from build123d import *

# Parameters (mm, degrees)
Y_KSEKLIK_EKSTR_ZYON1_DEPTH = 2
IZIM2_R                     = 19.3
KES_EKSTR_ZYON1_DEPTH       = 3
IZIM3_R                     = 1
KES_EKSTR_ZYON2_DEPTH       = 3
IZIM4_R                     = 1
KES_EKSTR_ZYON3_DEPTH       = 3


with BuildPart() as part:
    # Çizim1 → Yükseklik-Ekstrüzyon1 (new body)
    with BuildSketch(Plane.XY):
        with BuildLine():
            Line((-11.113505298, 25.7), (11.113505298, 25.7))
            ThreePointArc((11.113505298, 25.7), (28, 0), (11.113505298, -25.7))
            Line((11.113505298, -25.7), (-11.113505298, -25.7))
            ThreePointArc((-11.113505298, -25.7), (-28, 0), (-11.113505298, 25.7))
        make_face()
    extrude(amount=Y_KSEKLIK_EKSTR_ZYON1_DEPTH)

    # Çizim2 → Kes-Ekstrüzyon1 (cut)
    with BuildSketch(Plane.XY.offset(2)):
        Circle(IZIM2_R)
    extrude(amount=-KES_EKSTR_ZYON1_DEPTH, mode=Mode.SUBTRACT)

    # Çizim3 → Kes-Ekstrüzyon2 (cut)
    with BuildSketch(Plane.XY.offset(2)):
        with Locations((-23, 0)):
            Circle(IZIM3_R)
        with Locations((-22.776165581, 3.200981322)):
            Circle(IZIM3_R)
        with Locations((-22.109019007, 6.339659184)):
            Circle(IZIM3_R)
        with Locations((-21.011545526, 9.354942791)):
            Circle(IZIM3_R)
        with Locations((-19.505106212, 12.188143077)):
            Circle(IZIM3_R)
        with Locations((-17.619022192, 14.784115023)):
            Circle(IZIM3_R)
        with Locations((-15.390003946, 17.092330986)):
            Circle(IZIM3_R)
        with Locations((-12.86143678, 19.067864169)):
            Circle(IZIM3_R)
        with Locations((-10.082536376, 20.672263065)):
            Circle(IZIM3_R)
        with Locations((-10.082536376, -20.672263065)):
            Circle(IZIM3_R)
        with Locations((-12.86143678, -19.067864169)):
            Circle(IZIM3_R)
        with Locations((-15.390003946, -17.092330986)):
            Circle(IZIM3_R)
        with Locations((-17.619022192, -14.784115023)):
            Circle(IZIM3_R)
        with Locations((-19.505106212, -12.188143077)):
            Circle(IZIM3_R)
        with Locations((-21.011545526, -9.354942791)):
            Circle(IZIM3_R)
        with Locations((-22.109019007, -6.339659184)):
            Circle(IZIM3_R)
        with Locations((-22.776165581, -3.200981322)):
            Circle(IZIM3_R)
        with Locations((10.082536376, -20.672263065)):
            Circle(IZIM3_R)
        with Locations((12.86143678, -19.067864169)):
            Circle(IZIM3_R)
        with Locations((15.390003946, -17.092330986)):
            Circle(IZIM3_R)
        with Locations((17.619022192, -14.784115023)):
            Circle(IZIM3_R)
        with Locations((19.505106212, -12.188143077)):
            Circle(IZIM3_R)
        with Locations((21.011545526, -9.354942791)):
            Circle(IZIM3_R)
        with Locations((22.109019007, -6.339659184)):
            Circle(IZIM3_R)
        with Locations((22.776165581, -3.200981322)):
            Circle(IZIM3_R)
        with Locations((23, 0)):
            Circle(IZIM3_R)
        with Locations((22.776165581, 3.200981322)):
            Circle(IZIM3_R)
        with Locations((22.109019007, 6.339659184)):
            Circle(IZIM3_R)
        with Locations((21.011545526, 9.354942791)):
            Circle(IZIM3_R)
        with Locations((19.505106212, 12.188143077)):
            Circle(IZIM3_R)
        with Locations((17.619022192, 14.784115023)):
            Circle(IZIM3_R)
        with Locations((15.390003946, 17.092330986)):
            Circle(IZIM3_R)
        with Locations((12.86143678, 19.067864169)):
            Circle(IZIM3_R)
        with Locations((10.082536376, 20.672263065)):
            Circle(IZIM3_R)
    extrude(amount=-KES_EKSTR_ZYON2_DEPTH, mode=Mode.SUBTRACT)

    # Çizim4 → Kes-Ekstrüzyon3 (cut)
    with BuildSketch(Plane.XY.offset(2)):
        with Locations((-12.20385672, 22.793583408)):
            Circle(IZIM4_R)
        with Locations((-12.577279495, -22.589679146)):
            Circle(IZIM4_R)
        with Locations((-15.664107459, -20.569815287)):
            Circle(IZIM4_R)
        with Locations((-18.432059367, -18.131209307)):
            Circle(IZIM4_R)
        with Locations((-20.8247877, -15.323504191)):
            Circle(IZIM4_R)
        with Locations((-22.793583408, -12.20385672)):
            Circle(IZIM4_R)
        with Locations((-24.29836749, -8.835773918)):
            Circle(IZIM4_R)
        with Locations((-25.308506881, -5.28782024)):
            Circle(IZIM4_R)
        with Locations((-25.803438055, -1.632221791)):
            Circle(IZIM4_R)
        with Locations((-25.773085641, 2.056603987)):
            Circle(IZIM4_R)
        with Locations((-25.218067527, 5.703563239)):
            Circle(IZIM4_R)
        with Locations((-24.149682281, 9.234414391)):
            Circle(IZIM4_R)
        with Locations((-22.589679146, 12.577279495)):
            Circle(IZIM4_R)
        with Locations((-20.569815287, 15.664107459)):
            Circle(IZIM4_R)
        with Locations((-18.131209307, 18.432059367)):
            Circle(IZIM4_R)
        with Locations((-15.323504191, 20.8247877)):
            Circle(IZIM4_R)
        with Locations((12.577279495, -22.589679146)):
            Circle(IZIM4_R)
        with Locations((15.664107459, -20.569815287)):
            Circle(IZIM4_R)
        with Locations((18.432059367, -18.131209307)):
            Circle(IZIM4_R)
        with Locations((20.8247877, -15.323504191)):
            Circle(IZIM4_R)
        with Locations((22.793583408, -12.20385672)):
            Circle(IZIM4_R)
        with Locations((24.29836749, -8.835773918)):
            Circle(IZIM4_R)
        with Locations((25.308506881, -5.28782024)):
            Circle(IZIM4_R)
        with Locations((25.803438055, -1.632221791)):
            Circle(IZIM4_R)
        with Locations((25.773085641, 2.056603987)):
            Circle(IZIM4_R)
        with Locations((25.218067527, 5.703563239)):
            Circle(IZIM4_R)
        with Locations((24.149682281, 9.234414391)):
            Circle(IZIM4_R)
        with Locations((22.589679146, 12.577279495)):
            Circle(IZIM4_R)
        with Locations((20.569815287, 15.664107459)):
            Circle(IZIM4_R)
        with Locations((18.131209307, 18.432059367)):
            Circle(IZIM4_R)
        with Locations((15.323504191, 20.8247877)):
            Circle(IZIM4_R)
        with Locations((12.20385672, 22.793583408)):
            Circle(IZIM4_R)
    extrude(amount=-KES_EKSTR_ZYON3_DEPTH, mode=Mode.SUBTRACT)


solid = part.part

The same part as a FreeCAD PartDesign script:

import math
import FreeCAD as App
import Part
import Sketcher

V = App.Vector
Q = App.Units.Quantity

doc = App.newDocument("Part")
body = doc.addObject("PartDesign::Body", "Body")

# Sketch on XY plane
sketch1 = body.newObject("Sketcher::SketchObject", "Sketch")
sketch1.AttachmentSupport = (doc.getObject("XY_Plane"), [""])
sketch1.MapMode = "FlatFace"
sketch1.addGeometry([
    Part.LineSegment(V(11.113505, 25.7, 0), V(-11.113505, 25.7, 0)),
    Part.ArcOfCircle(Part.Circle(V(0, 0, 0), V(0, 0, 1), 28), math.radians(113.385206), math.radians(246.614794)),
    Part.LineSegment(V(-11.113505, -25.7, 0), V(11.113505, -25.7, 0)),
    Part.ArcOfCircle(Part.Circle(V(0, 0, 0), V(0, 0, 1), 28), math.radians(-66.614794), math.radians(66.614794)),
], False)
sketch1.addConstraint([
    Sketcher.Constraint("Coincident", 0, 2, 1, 1),
    Sketcher.Constraint("Coincident", 1, 2, 2, 1),
    Sketcher.Constraint("Coincident", 2, 2, 3, 1),
    Sketcher.Constraint("Coincident", 3, 2, 0, 1),
    Sketcher.Constraint("Horizontal", 0),
    Sketcher.Constraint("Horizontal", 2),
    Sketcher.Constraint("Coincident", 1, 3, -1, 1),
    Sketcher.Constraint("Coincident", 3, 3, -1, 1),
    Sketcher.Constraint("Equal", 1, 3),
    Sketcher.Constraint("Vertical", 0, 2, 1, 2),
    Sketcher.Constraint("Radius", 1, Q("28 mm")),
    Sketcher.Constraint("DistanceY", -1, 1, 0, 2, Q("25.7 mm")),
])
pad1 = body.newObject("PartDesign::Pad", "Pad")
pad1.Profile = sketch1
pad1.Length = 2

# Sketch on XY plane
sketch2 = body.newObject("Sketcher::SketchObject", "Sketch001")
sketch2.AttachmentSupport = (doc.getObject("XY_Plane"), [""])
sketch2.MapMode = "FlatFace"
sketch2.AttachmentOffset = App.Placement(V(0, 0, 2), App.Rotation())
sketch2.addGeometry(Part.Circle(V(0, 0, 0), V(0, 0, 1), 19.3), False)
sketch2.addConstraint([
    Sketcher.Constraint("Coincident", 0, 3, -1, 1),
    Sketcher.Constraint("Diameter", 0, Q("38.6 mm")),
])
pocket1 = body.newObject("PartDesign::Pocket", "Pocket")
pocket1.Profile = sketch2
pocket1.Length = 3

# Sketch on XY plane
sketch3 = body.newObject("Sketcher::SketchObject", "Sketch002")
sketch3.AttachmentSupport = (doc.getObject("XY_Plane"), [""])
sketch3.MapMode = "FlatFace"
sketch3.AttachmentOffset = App.Placement(V(0, 0, 2), App.Rotation())
sketch3.addGeometry([
    Part.Circle(V(-23, 0, 0), V(0, 0, 1), 1),  # 0
    Part.Circle(V(-22.776166, 3.200981, 0), V(0, 0, 1), 1),  # 1
    Part.Circle(V(-22.109019, 6.339659, 0), V(0, 0, 1), 1),  # 2
    Part.Circle(V(-21.011546, 9.354943, 0), V(0, 0, 1), 1),  # 3
    Part.Circle(V(-19.505106, 12.188143, 0), V(0, 0, 1), 1),  # 4
    Part.Circle(V(-17.619022, 14.784115, 0), V(0, 0, 1), 1),  # 5
    Part.Circle(V(-15.390004, 17.092331, 0), V(0, 0, 1), 1),  # 6
    Part.Circle(V(-12.861437, 19.067864, 0), V(0, 0, 1), 1),  # 7
    Part.Circle(V(-10.082536, 20.672263, 0), V(0, 0, 1), 1),  # 8
    Part.Circle(V(-10.082536, -20.672263, 0), V(0, 0, 1), 1),  # 9
    Part.Circle(V(-12.861437, -19.067864, 0), V(0, 0, 1), 1),  # 10
    Part.Circle(V(-15.390004, -17.092331, 0), V(0, 0, 1), 1),  # 11
    Part.Circle(V(-17.619022, -14.784115, 0), V(0, 0, 1), 1),  # 12
    Part.Circle(V(-19.505106, -12.188143, 0), V(0, 0, 1), 1),  # 13
    Part.Circle(V(-21.011546, -9.354943, 0), V(0, 0, 1), 1),  # 14
    Part.Circle(V(-22.109019, -6.339659, 0), V(0, 0, 1), 1),  # 15
    Part.Circle(V(-22.776166, -3.200981, 0), V(0, 0, 1), 1),  # 16
    Part.Circle(V(10.082536, -20.672263, 0), V(0, 0, 1), 1),  # 17
    Part.Circle(V(12.861437, -19.067864, 0), V(0, 0, 1), 1),  # 18
    Part.Circle(V(15.390004, -17.092331, 0), V(0, 0, 1), 1),  # 19
    Part.Circle(V(17.619022, -14.784115, 0), V(0, 0, 1), 1),  # 20
    Part.Circle(V(19.505106, -12.188143, 0), V(0, 0, 1), 1),  # 21
    Part.Circle(V(21.011546, -9.354943, 0), V(0, 0, 1), 1),  # 22
    Part.Circle(V(22.109019, -6.339659, 0), V(0, 0, 1), 1),  # 23
    Part.Circle(V(22.776166, -3.200981, 0), V(0, 0, 1), 1),  # 24
    Part.Circle(V(23, 0, 0), V(0, 0, 1), 1),  # 25
    Part.Circle(V(22.776166, 3.200981, 0), V(0, 0, 1), 1),  # 26
    Part.Circle(V(22.109019, 6.339659, 0), V(0, 0, 1), 1),  # 27
    Part.Circle(V(21.011546, 9.354943, 0), V(0, 0, 1), 1),  # 28
    Part.Circle(V(19.505106, 12.188143, 0), V(0, 0, 1), 1),  # 29
    Part.Circle(V(17.619022, 14.784115, 0), V(0, 0, 1), 1),  # 30
    Part.Circle(V(15.390004, 17.092331, 0), V(0, 0, 1), 1),  # 31
    Part.Circle(V(12.861437, 19.067864, 0), V(0, 0, 1), 1),  # 32
    Part.Circle(V(10.082536, 20.672263, 0), V(0, 0, 1), 1),  # 33
], False)
sketch3.addConstraint([
    Sketcher.Constraint("Equal", 0, 1),
    Sketcher.Constraint("Equal", 1, 2),
    Sketcher.Constraint("Equal", 2, 3),
    Sketcher.Constraint("Equal", 3, 4),
    Sketcher.Constraint("Equal", 4, 5),
    Sketcher.Constraint("Equal", 5, 6),
    Sketcher.Constraint("Equal", 6, 7),
    Sketcher.Constraint("Equal", 7, 8),
    Sketcher.Constraint("Equal", 8, 9),
    Sketcher.Constraint("Equal", 9, 10),
    Sketcher.Constraint("Equal", 10, 11),
    Sketcher.Constraint("Equal", 11, 12),
    Sketcher.Constraint("Equal", 12, 13),
    Sketcher.Constraint("Equal", 13, 14),
    Sketcher.Constraint("Equal", 14, 15),
    Sketcher.Constraint("Equal", 15, 16),
    Sketcher.Constraint("Equal", 16, 17),
    Sketcher.Constraint("Equal", 17, 18),
    Sketcher.Constraint("Equal", 18, 19),
    Sketcher.Constraint("Equal", 19, 20),
    Sketcher.Constraint("Equal", 20, 21),
    Sketcher.Constraint("Equal", 21, 22),
    Sketcher.Constraint("Equal", 22, 23),
    Sketcher.Constraint("Equal", 23, 24),
    Sketcher.Constraint("Equal", 24, 25),
    Sketcher.Constraint("Equal", 25, 26),
    Sketcher.Constraint("Equal", 26, 27),
    Sketcher.Constraint("Equal", 27, 28),
    Sketcher.Constraint("Equal", 28, 29),
    Sketcher.Constraint("Equal", 29, 30),
    Sketcher.Constraint("Equal", 30, 31),
    Sketcher.Constraint("Equal", 31, 32),
    Sketcher.Constraint("Equal", 32, 33),
    Sketcher.Constraint("Symmetric", 8, 3, 17, 3, -1, 1),
    Sketcher.Constraint("Symmetric", 7, 3, 18, 3, -1, 1),
    Sketcher.Constraint("Symmetric", 6, 3, 19, 3, -1, 1),
    Sketcher.Constraint("Symmetric", 5, 3, 20, 3, -1, 1),
    Sketcher.Constraint("Symmetric", 4, 3, 21, 3, -1, 1),
    Sketcher.Constraint("Symmetric", 3, 3, 22, 3, -1, 1),
    Sketcher.Constraint("Symmetric", 2, 3, 23, 3, -1, 1),
    Sketcher.Constraint("Symmetric", 1, 3, 24, 3, -1, 1),
    Sketcher.Constraint("Symmetric", 0, 3, 25, 3, -1, 1),
    Sketcher.Constraint("Symmetric", 16, 3, 26, 3, -1, 1),
    Sketcher.Constraint("Symmetric", 15, 3, 27, 3, -1, 1),
    Sketcher.Constraint("Symmetric", 14, 3, 28, 3, -1, 1),
    Sketcher.Constraint("Symmetric", 13, 3, 29, 3, -1, 1),
    Sketcher.Constraint("Symmetric", 12, 3, 30, 3, -1, 1),
    Sketcher.Constraint("Symmetric", 11, 3, 31, 3, -1, 1),
    Sketcher.Constraint("Symmetric", 10, 3, 32, 3, -1, 1),
    Sketcher.Constraint("Symmetric", 9, 3, 33, 3, -1, 1),
    Sketcher.Constraint("Symmetric", 9, 3, 17, 3, -2),
    Sketcher.Constraint("Symmetric", 10, 3, 18, 3, -2),
    Sketcher.Constraint("Symmetric", 11, 3, 19, 3, -2),
    Sketcher.Constraint("Symmetric", 12, 3, 20, 3, -2),
    Sketcher.Constraint("Symmetric", 13, 3, 21, 3, -2),
    Sketcher.Constraint("Symmetric", 14, 3, 22, 3, -2),
    Sketcher.Constraint("Symmetric", 15, 3, 23, 3, -2),
    Sketcher.Constraint("Symmetric", 16, 3, 24, 3, -2),
    Sketcher.Constraint("PointOnObject", 0, 3, -1),
    Sketcher.Constraint("Diameter", 0, Q("2 mm")),
    Sketcher.Constraint("DistanceX", 0, 3, -1, 1, Q("23 mm")),
    Sketcher.Constraint("DistanceY", 3, 3, 4, 3, Q("2.8332 mm")),
    Sketcher.Constraint("DistanceX", 7, 3, 8, 3, Q("2.7789 mm")),
    Sketcher.Constraint("DistanceY", 7, 3, 8, 3, Q("1.604399 mm")),
    Sketcher.Constraint("DistanceY", 22, 3, 27, 3, Q("15.694602 mm")),
    Sketcher.Constraint("DistanceY", -1, 1, 1, 3, Q("3.200981 mm")),
    Sketcher.Constraint("DistanceX", 2, 3, -1, 1, Q("22.109019 mm")),
    Sketcher.Constraint("DistanceY", -1, 1, 2, 3, Q("6.339659 mm")),
    Sketcher.Constraint("DistanceY", -1, 1, 6, 3, Q("17.092331 mm")),
    Sketcher.Constraint("DistanceX", 1, 3, 3, 3, Q("1.76462 mm")),
    Sketcher.Constraint("DistanceX", 3, 3, 4, 3, Q("1.506439 mm")),
    Sketcher.Constraint("DistanceY", 4, 3, 5, 3, Q("2.595972 mm")),
    Sketcher.Constraint("DistanceX", 5, 3, 6, 3, Q("2.229018 mm")),
    Sketcher.Constraint("DistanceX", 3, 3, 6, 3, Q("5.621542 mm")),
    Sketcher.Constraint("DistanceY", 5, 3, 7, 3, Q("4.283749 mm")),
    Sketcher.Constraint("DistanceX", 4, 3, 7, 3, Q("6.643669 mm")),
    Sketcher.Constraint("DistanceX", 11, 3, 17, 3, Q("25.47254 mm")),
])
pocket2 = body.newObject("PartDesign::Pocket", "Pocket001")
pocket2.Profile = sketch3
pocket2.Length = 3

# Sketch on XY plane
sketch4 = body.newObject("Sketcher::SketchObject", "Sketch003")
sketch4.AttachmentSupport = (doc.getObject("XY_Plane"), [""])
sketch4.MapMode = "FlatFace"
sketch4.AttachmentOffset = App.Placement(V(0, 0, 2), App.Rotation())
sketch4.addGeometry([
    Part.Circle(V(-12.203857, 22.793583, 0), V(0, 0, 1), 1),  # 0
    Part.Circle(V(-12.577279, -22.589679, 0), V(0, 0, 1), 1),  # 1
    Part.Circle(V(-15.664107, -20.569815, 0), V(0, 0, 1), 1),  # 2
    Part.Circle(V(-18.432059, -18.131209, 0), V(0, 0, 1), 1),  # 3
    Part.Circle(V(-20.824788, -15.323504, 0), V(0, 0, 1), 1),  # 4
    Part.Circle(V(-22.793583, -12.203857, 0), V(0, 0, 1), 1),  # 5
    Part.Circle(V(-24.298367, -8.835774, 0), V(0, 0, 1), 1),  # 6
    Part.Circle(V(-25.308507, -5.28782, 0), V(0, 0, 1), 1),  # 7
    Part.Circle(V(-25.803438, -1.632222, 0), V(0, 0, 1), 1),  # 8
    Part.Circle(V(-25.773086, 2.056604, 0), V(0, 0, 1), 1),  # 9
    Part.Circle(V(-25.218068, 5.703563, 0), V(0, 0, 1), 1),  # 10
    Part.Circle(V(-24.149682, 9.234414, 0), V(0, 0, 1), 1),  # 11
    Part.Circle(V(-22.589679, 12.577279, 0), V(0, 0, 1), 1),  # 12
    Part.Circle(V(-20.569815, 15.664107, 0), V(0, 0, 1), 1),  # 13
    Part.Circle(V(-18.131209, 18.432059, 0), V(0, 0, 1), 1),  # 14
    Part.Circle(V(-15.323504, 20.824788, 0), V(0, 0, 1), 1),  # 15
    Part.Circle(V(12.577279, -22.589679, 0), V(0, 0, 1), 1),  # 16
    Part.Circle(V(15.664107, -20.569815, 0), V(0, 0, 1), 1),  # 17
    Part.Circle(V(18.432059, -18.131209, 0), V(0, 0, 1), 1),  # 18
    Part.Circle(V(20.824788, -15.323504, 0), V(0, 0, 1), 1),  # 19
    Part.Circle(V(22.793583, -12.203857, 0), V(0, 0, 1), 1),  # 20
    Part.Circle(V(24.298367, -8.835774, 0), V(0, 0, 1), 1),  # 21
    Part.Circle(V(25.308507, -5.28782, 0), V(0, 0, 1), 1),  # 22
    Part.Circle(V(25.803438, -1.632222, 0), V(0, 0, 1), 1),  # 23
    Part.Circle(V(25.773086, 2.056604, 0), V(0, 0, 1), 1),  # 24
    Part.Circle(V(25.218068, 5.703563, 0), V(0, 0, 1), 1),  # 25
    Part.Circle(V(24.149682, 9.234414, 0), V(0, 0, 1), 1),  # 26
    Part.Circle(V(22.589679, 12.577279, 0), V(0, 0, 1), 1),  # 27
    Part.Circle(V(20.569815, 15.664107, 0), V(0, 0, 1), 1),  # 28
    Part.Circle(V(18.131209, 18.432059, 0), V(0, 0, 1), 1),  # 29
    Part.Circle(V(15.323504, 20.824788, 0), V(0, 0, 1), 1),  # 30
    Part.Circle(V(12.203857, 22.793583, 0), V(0, 0, 1), 1),  # 31
], False)
sketch4.addConstraint([
    Sketcher.Constraint("Equal", 0, 1),
    Sketcher.Constraint("Equal", 1, 2),
    Sketcher.Constraint("Equal", 2, 3),
    Sketcher.Constraint("Equal", 3, 4),
    Sketcher.Constraint("Equal", 4, 5),
    Sketcher.Constraint("Equal", 5, 6),
    Sketcher.Constraint("Equal", 6, 7),
    Sketcher.Constraint("Equal", 7, 8),
    Sketcher.Constraint("Equal", 8, 9),
    Sketcher.Constraint("Equal", 9, 10),
    Sketcher.Constraint("Equal", 10, 11),
    Sketcher.Constraint("Equal", 11, 12),
    Sketcher.Constraint("Equal", 12, 13),
    Sketcher.Constraint("Equal", 13, 14),
    Sketcher.Constraint("Equal", 14, 15),
    Sketcher.Constraint("Equal", 15, 16),
    Sketcher.Constraint("Equal", 16, 17),
    Sketcher.Constraint("Equal", 17, 18),
    Sketcher.Constraint("Equal", 18, 19),
    Sketcher.Constraint("Equal", 19, 20),
    Sketcher.Constraint("Equal", 20, 21),
    Sketcher.Constraint("Equal", 21, 22),
    Sketcher.Constraint("Equal", 22, 23),
    Sketcher.Constraint("Equal", 23, 24),
    Sketcher.Constraint("Equal", 24, 25),
    Sketcher.Constraint("Equal", 25, 26),
    Sketcher.Constraint("Equal", 26, 27),
    Sketcher.Constraint("Equal", 27, 28),
    Sketcher.Constraint("Equal", 28, 29),
    Sketcher.Constraint("Equal", 29, 30),
    Sketcher.Constraint("Equal", 30, 31),
    Sketcher.Constraint("Symmetric", 1, 3, 16, 3, -2),
    Sketcher.Constraint("Symmetric", 2, 3, 17, 3, -2),
    Sketcher.Constraint("Symmetric", 3, 3, 18, 3, -2),
    Sketcher.Constraint("Symmetric", 4, 3, 19, 3, -2),
    Sketcher.Constraint("Symmetric", 5, 3, 20, 3, -2),
    Sketcher.Constraint("Symmetric", 6, 3, 21, 3, -2),
    Sketcher.Constraint("Symmetric", 7, 3, 22, 3, -2),
    Sketcher.Constraint("Symmetric", 8, 3, 23, 3, -2),
    Sketcher.Constraint("Symmetric", 9, 3, 24, 3, -2),
    Sketcher.Constraint("Symmetric", 10, 3, 25, 3, -2),
    Sketcher.Constraint("Symmetric", 11, 3, 26, 3, -2),
    Sketcher.Constraint("Symmetric", 12, 3, 27, 3, -2),
    Sketcher.Constraint("Symmetric", 13, 3, 28, 3, -2),
    Sketcher.Constraint("Symmetric", 14, 3, 29, 3, -2),
    Sketcher.Constraint("Symmetric", 15, 3, 30, 3, -2),
    Sketcher.Constraint("Symmetric", 0, 3, 31, 3, -2),
    Sketcher.Constraint("Diameter", 0, Q("2 mm")),
    Sketcher.Constraint("DistanceY", 2, 3, 0, 3, Q("43.363399 mm")),
    Sketcher.Constraint("DistanceX", 7, 3, 2, 3, Q("9.644399 mm")),
    Sketcher.Constraint("DistanceY", 7, 3, 8, 3, Q("3.655598 mm")),
    Sketcher.Constraint("DistanceX", 10, 3, 6, 3, Q("0.9197 mm")),
    Sketcher.Constraint("DistanceY", 8, 3, 12, 3, Q("14.209501 mm")),
    Sketcher.Constraint("DistanceX", 1, 3, -1, 1, Q("12.577279 mm")),
    Sketcher.Constraint("DistanceY", 1, 3, -1, 1, Q("22.589679 mm")),
    Sketcher.Constraint("DistanceX", 3, 3, -1, 1, Q("18.432059 mm")),
    Sketcher.Constraint("DistanceY", 3, 3, -1, 1, Q("18.131209 mm")),
    Sketcher.Constraint("DistanceY", 7, 3, -1, 1, Q("5.28782 mm")),
    Sketcher.Constraint("DistanceX", 8, 3, -1, 1, Q("25.803438 mm")),
    Sketcher.Constraint("DistanceX", 12, 3, -1, 1, Q("22.589679 mm")),
    Sketcher.Constraint("DistanceX", 14, 3, -1, 1, Q("18.131209 mm")),
    Sketcher.Constraint("DistanceY", -1, 1, 14, 3, Q("18.432059 mm")),
    Sketcher.Constraint("DistanceX", 2, 3, 0, 3, Q("3.460251 mm")),
    Sketcher.Constraint("DistanceX", 3, 3, 2, 3, Q("2.767952 mm")),
    Sketcher.Constraint("DistanceX", 4, 3, 3, 3, Q("2.392728 mm")),
    Sketcher.Constraint("DistanceY", 2, 3, 4, 3, Q("5.246311 mm")),
    Sketcher.Constraint("DistanceY", 2, 3, 5, 3, Q("8.365959 mm")),
    Sketcher.Constraint("DistanceX", 6, 3, 4, 3, Q("3.47358 mm")),
    Sketcher.Constraint("DistanceY", 4, 3, 6, 3, Q("6.48773 mm")),
    Sketcher.Constraint("DistanceX", 9, 3, 7, 3, Q("0.464579 mm")),
    Sketcher.Constraint("DistanceY", 5, 3, 9, 3, Q("14.260461 mm")),
    Sketcher.Constraint("DistanceY", 9, 3, 10, 3, Q("3.646959 mm")),
    Sketcher.Constraint("DistanceY", 10, 3, 11, 3, Q("3.530851 mm")),
    Sketcher.Constraint("DistanceX", 13, 3, 0, 3, Q("8.365959 mm")),
    Sketcher.Constraint("DistanceY", 13, 3, 14, 3, Q("2.767952 mm")),
    Sketcher.Constraint("DistanceY", 14, 3, 15, 3, Q("2.392728 mm")),
    Sketcher.Constraint("DistanceX", 13, 3, 15, 3, Q("5.246311 mm")),
    Sketcher.Constraint("DistanceX", 11, 3, 15, 3, Q("8.826178 mm")),
    Sketcher.Constraint("DistanceY", -1, 1, 0, 3, Q("22.793583 mm")),
    Sketcher.Constraint("DistanceX", 5, 3, -1, 1, Q("22.793583 mm")),
])
pocket3 = body.newObject("PartDesign::Pocket", "Pocket002")
pocket3.Profile = sketch4
pocket3.Length = 3

doc.recompute()
